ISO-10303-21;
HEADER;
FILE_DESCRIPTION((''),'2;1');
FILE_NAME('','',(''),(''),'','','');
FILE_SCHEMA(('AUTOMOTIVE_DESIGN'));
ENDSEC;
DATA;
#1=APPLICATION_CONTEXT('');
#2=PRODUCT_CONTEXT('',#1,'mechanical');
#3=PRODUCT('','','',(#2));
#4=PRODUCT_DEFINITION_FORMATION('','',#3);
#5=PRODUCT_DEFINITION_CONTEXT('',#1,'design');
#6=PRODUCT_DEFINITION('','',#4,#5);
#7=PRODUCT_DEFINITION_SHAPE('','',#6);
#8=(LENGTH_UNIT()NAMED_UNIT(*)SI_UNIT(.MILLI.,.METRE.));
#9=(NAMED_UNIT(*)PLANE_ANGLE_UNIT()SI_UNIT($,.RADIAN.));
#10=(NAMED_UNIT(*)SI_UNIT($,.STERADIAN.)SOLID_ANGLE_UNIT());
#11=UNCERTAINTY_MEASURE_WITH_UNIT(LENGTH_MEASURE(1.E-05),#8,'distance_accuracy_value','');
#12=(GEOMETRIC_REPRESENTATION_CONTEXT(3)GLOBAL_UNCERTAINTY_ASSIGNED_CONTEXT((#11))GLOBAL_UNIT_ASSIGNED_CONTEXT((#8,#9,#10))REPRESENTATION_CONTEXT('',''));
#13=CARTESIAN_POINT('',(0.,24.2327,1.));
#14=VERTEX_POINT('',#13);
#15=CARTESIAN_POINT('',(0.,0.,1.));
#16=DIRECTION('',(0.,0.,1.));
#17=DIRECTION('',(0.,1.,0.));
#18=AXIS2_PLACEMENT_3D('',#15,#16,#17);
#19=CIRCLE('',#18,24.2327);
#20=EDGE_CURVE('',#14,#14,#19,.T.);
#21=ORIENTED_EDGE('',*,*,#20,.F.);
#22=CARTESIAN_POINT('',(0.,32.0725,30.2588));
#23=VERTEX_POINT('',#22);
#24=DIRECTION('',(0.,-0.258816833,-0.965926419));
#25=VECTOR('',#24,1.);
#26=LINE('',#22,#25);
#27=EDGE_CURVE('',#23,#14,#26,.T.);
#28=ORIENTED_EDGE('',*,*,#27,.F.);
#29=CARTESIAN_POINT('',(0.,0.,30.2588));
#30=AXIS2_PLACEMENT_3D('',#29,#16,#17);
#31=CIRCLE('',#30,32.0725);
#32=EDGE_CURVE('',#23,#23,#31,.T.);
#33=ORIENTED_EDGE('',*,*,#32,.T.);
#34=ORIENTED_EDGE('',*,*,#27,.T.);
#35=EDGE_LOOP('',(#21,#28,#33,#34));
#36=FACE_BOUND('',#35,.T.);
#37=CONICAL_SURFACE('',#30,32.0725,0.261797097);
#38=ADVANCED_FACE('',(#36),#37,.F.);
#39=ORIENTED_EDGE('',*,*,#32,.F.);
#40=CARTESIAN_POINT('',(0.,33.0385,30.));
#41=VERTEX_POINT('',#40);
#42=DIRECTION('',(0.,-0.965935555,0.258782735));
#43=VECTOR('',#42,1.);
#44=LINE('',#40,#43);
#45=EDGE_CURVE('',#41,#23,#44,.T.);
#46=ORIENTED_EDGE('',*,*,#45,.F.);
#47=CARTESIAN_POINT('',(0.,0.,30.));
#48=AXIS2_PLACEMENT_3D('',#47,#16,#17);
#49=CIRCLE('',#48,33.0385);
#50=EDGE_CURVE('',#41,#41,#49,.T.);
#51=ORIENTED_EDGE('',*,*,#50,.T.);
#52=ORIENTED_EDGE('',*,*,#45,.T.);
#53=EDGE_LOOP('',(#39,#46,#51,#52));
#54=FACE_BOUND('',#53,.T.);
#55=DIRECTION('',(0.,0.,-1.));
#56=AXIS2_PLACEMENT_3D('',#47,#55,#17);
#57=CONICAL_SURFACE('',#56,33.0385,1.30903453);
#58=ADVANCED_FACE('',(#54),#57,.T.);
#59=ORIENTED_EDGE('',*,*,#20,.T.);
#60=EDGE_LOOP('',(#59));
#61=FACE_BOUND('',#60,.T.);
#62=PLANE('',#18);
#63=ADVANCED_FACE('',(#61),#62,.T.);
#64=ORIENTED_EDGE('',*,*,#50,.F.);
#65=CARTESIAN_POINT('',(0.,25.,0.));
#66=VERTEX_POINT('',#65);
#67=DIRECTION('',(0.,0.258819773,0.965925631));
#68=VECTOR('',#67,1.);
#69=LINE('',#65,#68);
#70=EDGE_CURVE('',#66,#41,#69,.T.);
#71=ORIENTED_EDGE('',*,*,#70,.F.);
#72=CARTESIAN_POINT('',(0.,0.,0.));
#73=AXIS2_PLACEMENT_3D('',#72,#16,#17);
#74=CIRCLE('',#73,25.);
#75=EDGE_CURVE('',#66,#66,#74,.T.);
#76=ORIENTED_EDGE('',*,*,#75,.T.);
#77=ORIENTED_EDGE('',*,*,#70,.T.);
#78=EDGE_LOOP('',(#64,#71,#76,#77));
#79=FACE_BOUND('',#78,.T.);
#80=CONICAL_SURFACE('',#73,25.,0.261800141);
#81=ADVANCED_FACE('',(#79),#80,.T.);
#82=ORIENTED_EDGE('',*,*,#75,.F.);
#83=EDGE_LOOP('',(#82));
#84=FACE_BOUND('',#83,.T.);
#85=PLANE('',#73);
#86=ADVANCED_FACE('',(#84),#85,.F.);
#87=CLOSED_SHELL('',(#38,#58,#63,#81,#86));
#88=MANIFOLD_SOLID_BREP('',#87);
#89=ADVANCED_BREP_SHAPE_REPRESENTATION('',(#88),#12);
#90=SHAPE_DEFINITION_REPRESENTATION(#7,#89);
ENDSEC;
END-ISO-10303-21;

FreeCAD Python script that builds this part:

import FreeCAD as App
import Part
import Sketcher
Q = App.Units.Quantity


def add_polygon(sketch, points):
    """Adds a closed chain of lines whose ends are joined by coincident constraints."""
    first, n = sketch.GeometryCount, len(points)
    for a, b in zip(points, points[1:] + points[:1]):
        sketch.addGeometry(Part.LineSegment(App.Vector(*a, 0), App.Vector(*b, 0)), False)
    for i in range(n):
        sketch.addConstraint(Sketcher.Constraint("Coincident", first + i, 2, first + (i + 1) % n, 1))

doc = App.newDocument("Part")
params = doc.addObject("Spreadsheet::Sheet", "Params")
for row, (alias, value) in enumerate([
    ("sketch1_width", "25 mm"),
    ("sketch1_height", "1 mm"),
    ("sketch1_length", "1 mm"),
    ("revolution_angle", "360 deg"),
], start=1):
    params.set(f"A{row}", alias)
    params.set(f"B{row}", "=" + value)
    params.setAlias(f"B{row}", alias)

body = doc.addObject("PartDesign::Body", "Body")

# Sketch on YZ plane
sketch1 = body.newObject("Sketcher::SketchObject", "Sketch")
sketch1.AttachmentSupport = (doc.getObject("YZ_Plane"), [""])
sketch1.MapMode = "FlatFace"
add_polygon(sketch1, [(0, 1), (0, 0), (25, 0), (33.0385, 30), (32.0725, 30.2588), (24.2327, 1)])  # lines 0-5
sketch1.addConstraint([
    Sketcher.Constraint("Vertical", 0),
    Sketcher.Constraint("Horizontal", 1),
    Sketcher.Constraint("Horizontal", 5),
    Sketcher.Constraint("Coincident", 0, 2, -1, 1),
    Sketcher.Constraint("Perpendicular", 2, 3),
    Sketcher.Constraint("Perpendicular", 3, 4),
    Sketcher.Constraint("DistanceX", 1, 1, 1, 2, Q("25 mm")),
    Sketcher.Constraint("DistanceY", 0, 2, 0, 1, Q("1 mm")),
    Sketcher.Constraint("Angle", 2, Q("75 deg")),
    Sketcher.Constraint("Distance", 3, Q("1 mm")),
    Sketcher.Constraint("DistanceY", -1, 1, 2, 2, Q("30 mm")),
])
sketch1.setExpression("Constraints[12]", "Params.sketch1_width")
sketch1.setExpression("Constraints[13]", "Params.sketch1_height")
sketch1.setExpression("Constraints[15]", "Params.sketch1_length")
revolution = body.newObject("PartDesign::Revolution", "Revolution")
revolution.Profile = sketch1
revolution.ReferenceAxis = (sketch1, ["V_Axis"])
revolution.setExpression("Angle", "Params.revolution_angle")

doc.recompute()
